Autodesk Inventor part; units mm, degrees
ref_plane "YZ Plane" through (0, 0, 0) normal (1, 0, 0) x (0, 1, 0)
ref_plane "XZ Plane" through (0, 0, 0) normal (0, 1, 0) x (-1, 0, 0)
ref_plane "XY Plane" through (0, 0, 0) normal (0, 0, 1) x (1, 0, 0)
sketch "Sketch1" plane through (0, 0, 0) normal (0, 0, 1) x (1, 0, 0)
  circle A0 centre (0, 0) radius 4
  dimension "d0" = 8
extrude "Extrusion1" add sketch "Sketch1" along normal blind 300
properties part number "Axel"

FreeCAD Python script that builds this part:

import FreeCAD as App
import Part
import Sketcher

V = App.Vector

doc = App.newDocument("Part")
body = doc.addObject("PartDesign::Body", "Body")

# Sketch on XY plane
sketch1 = body.newObject("Sketcher::SketchObject", "Sketch")
sketch1.AttachmentSupport = (doc.getObject("XY_Plane"), [""])
sketch1.MapMode = "FlatFace"
sketch1.addGeometry(Part.Circle(V(0, 0, 0), V(0, 0, 1), 4), False)
sketch1.addConstraint(Sketcher.Constraint("Coincident", 0, 3, -1, 1))
sketch1.addConstraint(Sketcher.Constraint("Diameter", 0, 8.0))
pad1 = body.newObject("PartDesign::Pad", "Pad")
pad1.Profile = sketch1
pad1.Length = 300

doc.recompute()
